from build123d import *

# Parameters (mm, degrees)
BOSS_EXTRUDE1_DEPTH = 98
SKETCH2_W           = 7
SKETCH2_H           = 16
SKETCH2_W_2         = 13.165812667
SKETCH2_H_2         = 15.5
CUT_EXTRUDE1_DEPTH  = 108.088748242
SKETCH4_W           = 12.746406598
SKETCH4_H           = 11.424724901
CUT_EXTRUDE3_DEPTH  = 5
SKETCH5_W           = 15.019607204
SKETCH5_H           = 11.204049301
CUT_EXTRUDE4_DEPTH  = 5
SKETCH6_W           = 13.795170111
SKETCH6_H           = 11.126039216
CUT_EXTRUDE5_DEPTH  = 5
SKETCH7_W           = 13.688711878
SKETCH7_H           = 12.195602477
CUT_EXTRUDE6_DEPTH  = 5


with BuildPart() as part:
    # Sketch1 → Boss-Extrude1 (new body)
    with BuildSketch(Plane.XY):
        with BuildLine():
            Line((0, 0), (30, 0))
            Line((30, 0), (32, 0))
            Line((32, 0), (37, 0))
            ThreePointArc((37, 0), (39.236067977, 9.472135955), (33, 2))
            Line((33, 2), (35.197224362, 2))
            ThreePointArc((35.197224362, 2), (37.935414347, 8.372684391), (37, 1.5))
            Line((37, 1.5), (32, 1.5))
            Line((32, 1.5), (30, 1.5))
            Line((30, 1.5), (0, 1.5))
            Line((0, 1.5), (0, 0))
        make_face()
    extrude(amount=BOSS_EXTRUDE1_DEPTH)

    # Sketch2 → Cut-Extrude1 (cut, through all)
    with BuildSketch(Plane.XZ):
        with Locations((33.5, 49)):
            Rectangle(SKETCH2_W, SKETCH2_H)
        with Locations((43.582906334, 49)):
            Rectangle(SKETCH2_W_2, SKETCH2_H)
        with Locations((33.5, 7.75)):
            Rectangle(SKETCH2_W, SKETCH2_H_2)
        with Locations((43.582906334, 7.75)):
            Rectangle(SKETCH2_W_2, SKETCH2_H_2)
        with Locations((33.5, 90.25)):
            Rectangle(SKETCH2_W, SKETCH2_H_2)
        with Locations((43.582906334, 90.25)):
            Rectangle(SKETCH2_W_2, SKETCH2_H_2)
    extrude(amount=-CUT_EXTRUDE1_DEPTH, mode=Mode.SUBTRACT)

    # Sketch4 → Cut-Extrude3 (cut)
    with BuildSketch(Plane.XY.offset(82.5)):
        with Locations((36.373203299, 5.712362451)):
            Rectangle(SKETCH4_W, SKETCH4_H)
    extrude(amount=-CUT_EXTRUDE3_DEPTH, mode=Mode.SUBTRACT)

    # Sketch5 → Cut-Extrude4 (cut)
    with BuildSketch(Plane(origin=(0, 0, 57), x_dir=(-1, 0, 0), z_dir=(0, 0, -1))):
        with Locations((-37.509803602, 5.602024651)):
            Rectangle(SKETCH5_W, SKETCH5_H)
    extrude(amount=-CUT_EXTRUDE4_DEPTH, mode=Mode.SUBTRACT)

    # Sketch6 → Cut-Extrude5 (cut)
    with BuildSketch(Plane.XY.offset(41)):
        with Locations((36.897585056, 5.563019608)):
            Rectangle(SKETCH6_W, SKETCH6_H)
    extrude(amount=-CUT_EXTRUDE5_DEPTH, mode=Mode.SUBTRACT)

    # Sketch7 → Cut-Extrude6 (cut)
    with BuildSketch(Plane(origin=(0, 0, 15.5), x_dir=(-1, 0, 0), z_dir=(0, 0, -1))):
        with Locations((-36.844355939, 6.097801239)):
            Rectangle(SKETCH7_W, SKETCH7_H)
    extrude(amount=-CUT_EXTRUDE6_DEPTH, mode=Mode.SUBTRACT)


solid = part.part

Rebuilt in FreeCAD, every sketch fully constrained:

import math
import FreeCAD as App
import Part
import Sketcher
Q = App.Units.Quantity


def add_polygon(sketch, points):
    """Adds a closed chain of lines whose ends are joined by coincident constraints."""
    first, n = sketch.GeometryCount, len(points)
    for a, b in zip(points, points[1:] + points[:1]):
        sketch.addGeometry(Part.LineSegment(App.Vector(*a, 0), App.Vector(*b, 0)), False)
    for i in range(n):
        sketch.addConstraint(Sketcher.Constraint("Coincident", first + i, 2, first + (i + 1) % n, 1))

doc = App.newDocument("Part")
body = doc.addObject("PartDesign::Body", "Body")

# Sketch on XY plane
sketch1 = doc.addObject("Sketcher::SketchObject", "Sketch")
body.addObject(sketch1)
sketch1.AttachmentSupport = (doc.XY_Plane, [""])
sketch1.MapMode = "FlatFace"
sketch1.addGeometry(Part.LineSegment(App.Vector(0, 0, 0), App.Vector(37, 0, 0)), False)
sketch1.addGeometry(Part.ArcOfCircle(Part.Circle(App.Vector(37, 5, 0), App.Vector(0, 0, 1), 5), math.radians(-90), math.radians(217)), False)
sketch1.addGeometry(Part.LineSegment(App.Vector(33, 2, 0), App.Vector(35.2, 2, 0)), False)
sketch1.addGeometry(Part.ArcOfCircle(Part.Circle(App.Vector(37, 5, 0), App.Vector(0, 0, 1), 3.5), math.radians(-90), math.radians(239)), False)
sketch1.addGeometry(Part.LineSegment(App.Vector(37, 1.5, 0), App.Vector(0, 1.5, 0)), False)
sketch1.addGeometry(Part.LineSegment(App.Vector(0, 1.5, 0), App.Vector(0, 0, 0)), False)
sketch1.addConstraint(Sketcher.Constraint("Tangent", 0, 2, 1, 1))
sketch1.addConstraint(Sketcher.Constraint("Coincident", 1, 2, 2, 1))
sketch1.addConstraint(Sketcher.Constraint("Coincident", 2, 2, 3, 2))
sketch1.addConstraint(Sketcher.Constraint("Tangent", 3, 1, 4, 1))
sketch1.addConstraint(Sketcher.Constraint("Coincident", 4, 2, 5, 1))
sketch1.addConstraint(Sketcher.Constraint("Coincident", 5, 2, 0, 1))
sketch1.addConstraint(Sketcher.Constraint("Horizontal", 0))
sketch1.addConstraint(Sketcher.Constraint("Horizontal", 2))
sketch1.addConstraint(Sketcher.Constraint("Horizontal", 4))
sketch1.addConstraint(Sketcher.Constraint("Vertical", 5))
sketch1.addConstraint(Sketcher.Constraint("Coincident", 5, 2, -1, 1))
sketch1.addConstraint(Sketcher.Constraint("Coincident", 3, 3, 1, 3))
sketch1.addConstraint(Sketcher.Constraint("Radius", 1, Q("5 mm")))
sketch1.addConstraint(Sketcher.Constraint("Radius", 3, Q("3.5 mm")))
sketch1.addConstraint(Sketcher.Constraint("DistanceX", 0, 1, 0, 2, Q("37 mm")))
sketch1.addConstraint(Sketcher.Constraint("DistanceX", -1, 1, 1, 2, Q("33 mm")))
pad1 = doc.addObject("PartDesign::Pad", "Pad")
body.addObject(pad1)
pad1.Profile = sketch1
pad1.Length = 98

# Sketch on XZ plane
sketch2 = doc.addObject("Sketcher::SketchObject", "Sketch001")
body.addObject(sketch2)
sketch2.AttachmentSupport = (doc.XZ_Plane, [""])
sketch2.MapMode = "FlatFace"
add_polygon(sketch2, [(30, 57), (30, 41), (50, 41), (50, 57)])  # lines 0-3
add_polygon(sketch2, [(30, 16), (30, 0), (50, 0), (50, 16)])  # lines 4-7
add_polygon(sketch2, [(30, 98), (30, 82), (50, 82), (50, 98)])  # lines 8-11
sketch2.addConstraint(Sketcher.Constraint("Vertical", 0))
sketch2.addConstraint(Sketcher.Constraint("Horizontal", 1))
sketch2.addConstraint(Sketcher.Constraint("Vertical", 2))
sketch2.addConstraint(Sketcher.Constraint("Horizontal", 3))
sketch2.addConstraint(Sketcher.Constraint("Vertical", 4))
sketch2.addConstraint(Sketcher.Constraint("Horizontal", 5))
sketch2.addConstraint(Sketcher.Constraint("Vertical", 6))
sketch2.addConstraint(Sketcher.Constraint("Horizontal", 7))
sketch2.addConstraint(Sketcher.Constraint("Vertical", 8))
sketch2.addConstraint(Sketcher.Constraint("Horizontal", 9))
sketch2.addConstraint(Sketcher.Constraint("Vertical", 10))
sketch2.addConstraint(Sketcher.Constraint("Horizontal", 11))
sketch2.addConstraint(Sketcher.Constraint("PointOnObject", 4, 2, -1))
sketch2.addConstraint(Sketcher.Constraint("Vertical", 3, 2, 4, 2))
sketch2.addConstraint(Sketcher.Constraint("Vertical", 2, 2, 5, 2))
sketch2.addConstraint(Sketcher.Constraint("Vertical", 7, 2, 8, 2))
sketch2.addConstraint(Sketcher.Constraint("Vertical", 6, 2, 9, 2))
sketch2.addConstraint(Sketcher.Constraint("Equal", 6, 8))
sketch2.addConstraint(Sketcher.Constraint("DistanceY", 0, 2, 0, 1, Q("16 mm")))
sketch2.addConstraint(Sketcher.Constraint("DistanceY", 4, 2, 4, 1, Q("15.5 mm")))
sketch2.addConstraint(Sketcher.Constraint("DistanceX", -1, 1, 0, 2, Q("30 mm")))
sketch2.addConstraint(Sketcher.Constraint("DistanceY", -1, 1, 0, 2, Q("41 mm")))
sketch2.addConstraint(Sketcher.Constraint("DistanceY", -1, 1, 10, 2, Q("98 mm")))
sketch2.addConstraint(Sketcher.Constraint("DistanceX", 1, 1, 1, 2, Q("20.165813 mm")))
pocket1 = doc.addObject("PartDesign::Pocket", "Pocket")
body.addObject(pocket1)
pocket1.Profile = sketch2
pocket1.Type = "ThroughAll"

# Sketch on XY plane
sketch3 = doc.addObject("Sketcher::SketchObject", "Sketch002")
body.addObject(sketch3)
sketch3.AttachmentSupport = (doc.XY_Plane, [""])
sketch3.MapMode = "FlatFace"
sketch3.AttachmentOffset = App.Placement(App.Vector(0, 0, 82.5), App.Rotation())
add_polygon(sketch3, [(30, 11), (30, 0), (43, 0), (43, 11)])  # lines 0-3
sketch3.addConstraint(Sketcher.Constraint("Vertical", 0))
sketch3.addConstraint(Sketcher.Constraint("Horizontal", 1))
sketch3.addConstraint(Sketcher.Constraint("Vertical", 2))
sketch3.addConstraint(Sketcher.Constraint("Horizontal", 3))
sketch3.addConstraint(Sketcher.Constraint("PointOnObject", 0, 2, -1))
sketch3.addConstraint(Sketcher.Constraint("DistanceX", -1, 1, 0, 2, Q("30 mm")))
sketch3.addConstraint(Sketcher.Constraint("DistanceX", 1, 1, 1, 2, Q("12.746407 mm")))
sketch3.addConstraint(Sketcher.Constraint("DistanceY", 0, 2, 0, 1, Q("11.424725 mm")))
pocket2 = doc.addObject("PartDesign::Pocket", "Pocket001")
body.addObject(pocket2)
pocket2.Profile = sketch3
pocket2.Length = 5

# Sketch on XY plane
sketch4 = doc.addObject("Sketcher::SketchObject", "Sketch003")
body.addObject(sketch4)
sketch4.AttachmentSupport = (doc.XY_Plane, [""])
sketch4.MapMode = "FlatFace"
sketch4.AttachmentOffset = App.Placement(App.Vector(0, 0, 57), App.Rotation())
add_polygon(sketch4, [(45, 11), (45, 0), (30, 0), (30, 11)])  # lines 0-3
sketch4.addConstraint(Sketcher.Constraint("Vertical", 0))
sketch4.addConstraint(Sketcher.Constraint("Horizontal", 1))
sketch4.addConstraint(Sketcher.Constraint("Vertical", 2))
sketch4.addConstraint(Sketcher.Constraint("Horizontal", 3))
sketch4.addConstraint(Sketcher.Constraint("PointOnObject", 0, 2, -1))
sketch4.addConstraint(Sketcher.Constraint("DistanceX", -1, 1, 1, 2, Q("30 mm")))
sketch4.addConstraint(Sketcher.Constraint("DistanceY", 0, 2, 0, 1, Q("11.204049 mm")))
sketch4.addConstraint(Sketcher.Constraint("DistanceX", 1, 2, 1, 1, Q("15.019607 mm")))
pocket3 = doc.addObject("PartDesign::Pocket", "Pocket002")
body.addObject(pocket3)
pocket3.Profile = sketch4
pocket3.Length = 5
pocket3.Reversed = True

# Sketch on XY plane
sketch5 = doc.addObject("Sketcher::SketchObject", "Sketch004")
body.addObject(sketch5)
sketch5.AttachmentSupport = (doc.XY_Plane, [""])
sketch5.MapMode = "FlatFace"
sketch5.AttachmentOffset = App.Placement(App.Vector(0, 0, 41), App.Rotation())
add_polygon(sketch5, [(30, 11), (30, 0), (44, 0), (44, 11)])  # lines 0-3
sketch5.addConstraint(Sketcher.Constraint("Vertical", 0))
sketch5.addConstraint(Sketcher.Constraint("Horizontal", 1))
sketch5.addConstraint(Sketcher.Constraint("Vertical", 2))
sketch5.addConstraint(Sketcher.Constraint("Horizontal", 3))
sketch5.addConstraint(Sketcher.Constraint("PointOnObject", 0, 2, -1))
sketch5.addConstraint(Sketcher.Constraint("DistanceX", -1, 1, 0, 2, Q("30 mm")))
sketch5.addConstraint(Sketcher.Constraint("DistanceX", 1, 1, 1, 2, Q("13.79517 mm")))
sketch5.addConstraint(Sketcher.Constraint("DistanceY", 0, 2, 0, 1, Q("11.126039 mm")))
pocket4 = doc.addObject("PartDesign::Pocket", "Pocket003")
body.addObject(pocket4)
pocket4.Profile = sketch5
pocket4.Length = 5

# Sketch on XY plane
sketch6 = doc.addObject("Sketcher::SketchObject", "Sketch005")
body.addObject(sketch6)
sketch6.AttachmentSupport = (doc.XY_Plane, [""])
sketch6.MapMode = "FlatFace"
sketch6.AttachmentOffset = App.Placement(App.Vector(0, 0, 15.5), App.Rotation())
add_polygon(sketch6, [(44, 12), (44, 0), (30, 0), (30, 12)])  # lines 0-3
sketch6.addConstraint(Sketcher.Constraint("Vertical", 0))
sketch6.addConstraint(Sketcher.Constraint("Horizontal", 1))
sketch6.addConstraint(Sketcher.Constraint("Vertical", 2))
sketch6.addConstraint(Sketcher.Constraint("Horizontal", 3))
sketch6.addConstraint(Sketcher.Constraint("PointOnObject", 0, 2, -1))
sketch6.addConstraint(Sketcher.Constraint("DistanceX", -1, 1, 1, 2, Q("30 mm")))
sketch6.addConstraint(Sketcher.Constraint("DistanceX", 1, 2, 1, 1, Q("13.688712 mm")))
sketch6.addConstraint(Sketcher.Constraint("DistanceY", 0, 2, 0, 1, Q("12.195602 mm")))
pocket5 = doc.addObject("PartDesign::Pocket", "Pocket004")
body.addObject(pocket5)
pocket5.Profile = sketch6
pocket5.Length = 5
pocket5.Reversed = True

doc.recompute()
